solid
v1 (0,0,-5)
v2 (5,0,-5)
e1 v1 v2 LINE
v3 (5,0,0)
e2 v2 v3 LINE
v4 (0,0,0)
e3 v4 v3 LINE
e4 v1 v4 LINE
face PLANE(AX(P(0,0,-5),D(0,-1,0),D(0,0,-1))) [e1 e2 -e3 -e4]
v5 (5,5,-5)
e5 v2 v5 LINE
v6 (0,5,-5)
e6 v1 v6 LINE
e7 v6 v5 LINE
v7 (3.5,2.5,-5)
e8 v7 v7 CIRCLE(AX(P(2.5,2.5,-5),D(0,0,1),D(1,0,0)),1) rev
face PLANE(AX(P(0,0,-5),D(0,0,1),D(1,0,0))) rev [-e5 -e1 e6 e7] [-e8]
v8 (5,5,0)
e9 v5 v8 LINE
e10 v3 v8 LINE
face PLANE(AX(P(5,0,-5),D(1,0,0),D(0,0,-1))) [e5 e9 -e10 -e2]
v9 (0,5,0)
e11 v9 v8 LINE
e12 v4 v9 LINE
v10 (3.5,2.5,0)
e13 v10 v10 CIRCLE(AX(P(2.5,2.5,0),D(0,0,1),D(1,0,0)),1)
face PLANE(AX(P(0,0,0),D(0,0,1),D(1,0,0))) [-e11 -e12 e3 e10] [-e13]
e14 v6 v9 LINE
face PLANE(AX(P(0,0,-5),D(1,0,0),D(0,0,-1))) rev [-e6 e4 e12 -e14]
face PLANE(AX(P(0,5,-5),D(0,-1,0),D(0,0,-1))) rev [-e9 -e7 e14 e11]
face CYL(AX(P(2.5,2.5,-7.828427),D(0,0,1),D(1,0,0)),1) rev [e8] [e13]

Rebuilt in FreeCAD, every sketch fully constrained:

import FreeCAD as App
import Part
import Sketcher
from FreeCAD import Vector
Q = App.Units.Quantity

doc = App.newDocument("Part")
body = doc.addObject("PartDesign::Body", "Body")

sketch1 = doc.addObject("Sketcher::SketchObject", "Sketch")
body.addObject(sketch1)
sketch1.AttachmentSupport = (doc.XY_Plane, [""])
sketch1.MapMode = "FlatFace"
sketch1.addGeometry([
    Part.LineSegment(Vector(0, 5, 0), Vector(0, 0, 0)),
    Part.LineSegment(Vector(0, 0, 0), Vector(5, 0, 0)),
    Part.LineSegment(Vector(5, 0, 0), Vector(5, 5, 0)),
    Part.LineSegment(Vector(5, 5, 0), Vector(0, 5, 0)),
], False)
sketch1.addConstraint([
    Sketcher.Constraint("Coincident", 0, 2, 1, 1),
    Sketcher.Constraint("Coincident", 1, 2, 2, 1),
    Sketcher.Constraint("Coincident", 2, 2, 3, 1),
    Sketcher.Constraint("Coincident", 3, 2, 0, 1),
    Sketcher.Constraint("Vertical", 0),
    Sketcher.Constraint("Horizontal", 1),
    Sketcher.Constraint("Vertical", 2),
    Sketcher.Constraint("Horizontal", 3),
    Sketcher.Constraint("Coincident", 0, 2, -1, 1),
    Sketcher.Constraint("Equal", 3, 0),
    Sketcher.Constraint("DistanceX", 1, 1, 1, 2, Q("5 mm")),
])
pad1 = doc.addObject("PartDesign::Pad", "Pad")
body.addObject(pad1)
pad1.Profile = sketch1
pad1.Length = 5
pad1.Reversed = True

sketch2 = doc.addObject("Sketcher::SketchObject", "Sketch001")
body.addObject(sketch2)
sketch2.AttachmentSupport = (doc.XY_Plane, [""])
sketch2.MapMode = "FlatFace"
sketch2.addGeometry(Part.Circle(Vector(2.5, 2.5, 0), Vector(0, 0, 1), 1), False)
sketch2.addConstraint([
    Sketcher.Constraint("Diameter", 0, Q("2 mm")),
    Sketcher.Constraint("DistanceX", -1, 1, 0, 3, Q("2.5 mm")),
    Sketcher.Constraint("DistanceY", -1, 1, 0, 3, Q("2.5 mm")),
])
pocket1 = doc.addObject("PartDesign::Pocket", "Pocket")
body.addObject(pocket1)
pocket1.Profile = sketch2
pocket1.Length = 5

doc.recompute()
